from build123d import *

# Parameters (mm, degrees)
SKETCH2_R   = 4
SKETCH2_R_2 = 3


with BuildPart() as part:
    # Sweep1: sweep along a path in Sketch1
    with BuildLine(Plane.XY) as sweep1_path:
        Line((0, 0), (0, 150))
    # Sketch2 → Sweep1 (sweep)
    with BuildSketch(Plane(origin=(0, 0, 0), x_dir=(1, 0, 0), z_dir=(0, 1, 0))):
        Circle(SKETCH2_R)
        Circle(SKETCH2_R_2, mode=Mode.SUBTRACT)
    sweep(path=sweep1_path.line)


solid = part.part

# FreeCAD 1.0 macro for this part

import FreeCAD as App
import Part
import Sketcher

doc = App.newDocument("Part")
body = doc.addObject("PartDesign::Body", "Body")

sketch1 = doc.addObject("Sketcher::SketchObject", "Sketch")
body.addObject(sketch1)
sketch1.AttachmentSupport = (doc.XZ_Plane, [""])
sketch1.MapMode = "FlatFace"
sketch1.addGeometry([
    Part.Circle(App.Vector(0, 0, 0), App.Vector(0, 0, 1), 4),
    Part.Circle(App.Vector(0, 0, 0), App.Vector(0, 0, 1), 3),
], False)
sketch1.addConstraint([
    Sketcher.Constraint("Coincident", 0, 3, -1, 1),
    Sketcher.Constraint("Coincident", 1, 3, -1, 1),
    Sketcher.Constraint("Diameter", 0, 8.0),
    Sketcher.Constraint("Diameter", 1, 6.0),
])

sketch2 = doc.addObject("Sketcher::SketchObject", "Sketch001")
body.addObject(sketch2)
sketch2.AttachmentSupport = (doc.XY_Plane, [""])
sketch2.MapMode = "FlatFace"
sketch2.addGeometry(Part.LineSegment(App.Vector(0, 0, 0), App.Vector(0, 150, 0)), False)
sketch2.addConstraint([
    Sketcher.Constraint("Vertical", 0),
    Sketcher.Constraint("Coincident", 0, 1, -1, 1),
    Sketcher.Constraint("DistanceY", 0, 1, 0, 2, 150.0),
])
doc.recompute()

additivepipe = doc.addObject("PartDesign::AdditivePipe", "AdditivePipe")
body.addObject(additivepipe)
additivepipe.Profile = sketch1
additivepipe.Spine = (sketch2, ["Edge1"])

doc.recompute()
